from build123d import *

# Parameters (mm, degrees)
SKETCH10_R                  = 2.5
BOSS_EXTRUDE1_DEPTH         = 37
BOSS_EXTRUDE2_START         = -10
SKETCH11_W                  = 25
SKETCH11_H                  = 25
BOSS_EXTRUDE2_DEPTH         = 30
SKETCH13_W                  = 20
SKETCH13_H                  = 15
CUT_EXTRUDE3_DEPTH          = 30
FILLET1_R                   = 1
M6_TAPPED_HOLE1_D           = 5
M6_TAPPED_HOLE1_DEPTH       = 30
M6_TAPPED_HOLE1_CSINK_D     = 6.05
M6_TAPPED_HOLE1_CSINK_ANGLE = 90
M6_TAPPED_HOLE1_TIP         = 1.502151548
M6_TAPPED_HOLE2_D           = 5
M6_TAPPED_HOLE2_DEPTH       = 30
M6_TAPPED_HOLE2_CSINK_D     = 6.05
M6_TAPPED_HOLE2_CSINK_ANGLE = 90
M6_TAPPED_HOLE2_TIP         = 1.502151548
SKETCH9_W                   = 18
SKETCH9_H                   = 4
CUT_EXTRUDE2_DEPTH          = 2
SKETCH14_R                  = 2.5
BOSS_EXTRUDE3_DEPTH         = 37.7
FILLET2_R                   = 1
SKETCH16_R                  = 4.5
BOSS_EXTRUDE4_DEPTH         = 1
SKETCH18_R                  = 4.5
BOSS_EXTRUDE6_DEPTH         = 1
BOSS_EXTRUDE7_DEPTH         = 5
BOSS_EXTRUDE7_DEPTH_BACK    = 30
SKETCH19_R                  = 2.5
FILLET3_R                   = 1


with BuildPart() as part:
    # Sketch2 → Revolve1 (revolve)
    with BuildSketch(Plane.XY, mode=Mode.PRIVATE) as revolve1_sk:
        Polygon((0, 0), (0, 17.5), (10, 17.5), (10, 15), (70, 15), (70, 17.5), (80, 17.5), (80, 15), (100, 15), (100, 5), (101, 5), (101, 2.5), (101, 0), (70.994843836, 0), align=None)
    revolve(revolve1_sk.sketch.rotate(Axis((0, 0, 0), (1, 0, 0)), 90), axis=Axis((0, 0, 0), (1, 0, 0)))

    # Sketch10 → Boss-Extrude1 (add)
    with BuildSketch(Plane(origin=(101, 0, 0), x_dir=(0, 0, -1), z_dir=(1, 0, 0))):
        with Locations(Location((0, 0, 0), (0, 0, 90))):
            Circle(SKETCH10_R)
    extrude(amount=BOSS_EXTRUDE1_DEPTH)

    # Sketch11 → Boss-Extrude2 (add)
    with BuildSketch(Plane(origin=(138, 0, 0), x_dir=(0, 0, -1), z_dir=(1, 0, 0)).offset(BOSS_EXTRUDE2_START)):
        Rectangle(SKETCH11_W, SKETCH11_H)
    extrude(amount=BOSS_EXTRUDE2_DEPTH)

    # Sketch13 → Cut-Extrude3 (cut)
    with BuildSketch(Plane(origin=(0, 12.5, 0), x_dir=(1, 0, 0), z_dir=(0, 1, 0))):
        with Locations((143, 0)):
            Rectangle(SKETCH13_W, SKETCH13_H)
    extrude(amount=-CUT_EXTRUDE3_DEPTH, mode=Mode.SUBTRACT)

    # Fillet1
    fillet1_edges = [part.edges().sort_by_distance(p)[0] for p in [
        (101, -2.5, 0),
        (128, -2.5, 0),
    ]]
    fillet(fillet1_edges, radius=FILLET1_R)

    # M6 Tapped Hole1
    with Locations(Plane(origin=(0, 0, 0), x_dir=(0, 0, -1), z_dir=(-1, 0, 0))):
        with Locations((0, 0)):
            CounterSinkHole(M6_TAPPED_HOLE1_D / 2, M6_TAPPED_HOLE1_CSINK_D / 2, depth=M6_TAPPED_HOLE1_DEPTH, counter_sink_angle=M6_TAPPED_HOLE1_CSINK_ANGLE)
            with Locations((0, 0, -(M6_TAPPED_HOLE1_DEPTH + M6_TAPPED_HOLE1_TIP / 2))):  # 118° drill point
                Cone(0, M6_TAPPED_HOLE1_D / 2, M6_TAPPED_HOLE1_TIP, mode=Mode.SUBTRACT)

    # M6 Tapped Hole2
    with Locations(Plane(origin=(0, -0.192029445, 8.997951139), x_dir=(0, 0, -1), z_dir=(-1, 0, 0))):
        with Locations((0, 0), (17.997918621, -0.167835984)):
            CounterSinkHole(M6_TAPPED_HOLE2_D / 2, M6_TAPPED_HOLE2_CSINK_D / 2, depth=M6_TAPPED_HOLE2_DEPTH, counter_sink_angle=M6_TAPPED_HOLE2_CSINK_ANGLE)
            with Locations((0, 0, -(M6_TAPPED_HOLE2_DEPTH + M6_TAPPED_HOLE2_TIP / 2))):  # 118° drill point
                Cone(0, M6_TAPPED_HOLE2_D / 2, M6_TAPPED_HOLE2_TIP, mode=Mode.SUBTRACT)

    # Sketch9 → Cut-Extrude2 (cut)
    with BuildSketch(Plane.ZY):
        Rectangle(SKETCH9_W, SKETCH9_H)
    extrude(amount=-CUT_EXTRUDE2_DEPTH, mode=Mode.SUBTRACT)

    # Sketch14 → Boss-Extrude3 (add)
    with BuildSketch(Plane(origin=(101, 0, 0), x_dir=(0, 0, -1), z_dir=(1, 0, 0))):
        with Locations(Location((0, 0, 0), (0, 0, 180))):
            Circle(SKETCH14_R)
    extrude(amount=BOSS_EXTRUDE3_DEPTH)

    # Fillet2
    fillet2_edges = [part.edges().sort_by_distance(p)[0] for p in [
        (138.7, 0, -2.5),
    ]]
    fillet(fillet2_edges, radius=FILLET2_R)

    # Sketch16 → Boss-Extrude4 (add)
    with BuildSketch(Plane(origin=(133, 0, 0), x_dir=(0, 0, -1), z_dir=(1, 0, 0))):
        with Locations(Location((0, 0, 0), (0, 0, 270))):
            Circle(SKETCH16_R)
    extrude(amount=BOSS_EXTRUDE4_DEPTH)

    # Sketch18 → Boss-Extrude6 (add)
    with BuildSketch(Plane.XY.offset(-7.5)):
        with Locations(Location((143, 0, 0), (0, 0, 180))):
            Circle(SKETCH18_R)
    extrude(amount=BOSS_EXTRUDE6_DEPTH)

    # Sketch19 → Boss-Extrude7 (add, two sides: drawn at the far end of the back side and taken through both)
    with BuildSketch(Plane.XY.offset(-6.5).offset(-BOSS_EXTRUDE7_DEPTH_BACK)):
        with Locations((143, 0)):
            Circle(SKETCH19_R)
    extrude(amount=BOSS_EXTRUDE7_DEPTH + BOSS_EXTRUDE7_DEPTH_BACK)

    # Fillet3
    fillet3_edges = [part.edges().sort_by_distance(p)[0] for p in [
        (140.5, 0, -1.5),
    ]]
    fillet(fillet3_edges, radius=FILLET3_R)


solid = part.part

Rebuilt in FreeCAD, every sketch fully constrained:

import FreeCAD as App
import Part
import Sketcher

V = App.Vector
Q = App.Units.Quantity


def edges_at(feature, points):
    """Names of the edges that pass closest to the given points."""
    edges = feature.Shape.Edges
    near = lambda p: min(range(len(edges)), key=lambda i: edges[i].distToShape(Part.Vertex(*p))[0])
    return sorted({f"Edge{near(p) + 1}" for p in points})


def add_polygon(sketch, points):
    """Adds a closed chain of lines whose ends are joined by coincident constraints."""
    first, n = sketch.GeometryCount, len(points)
    for a, b in zip(points, points[1:] + points[:1]):
        sketch.addGeometry(Part.LineSegment(App.Vector(*a, 0), App.Vector(*b, 0)), False)
    for i in range(n):
        sketch.addConstraint(Sketcher.Constraint("Coincident", first + i, 2, first + (i + 1) % n, 1))

doc = App.newDocument("Part")
params = doc.addObject("Spreadsheet::Sheet", "Params")
for row, (alias, value) in enumerate([
    ("sketch1_width", "101 mm"),
    ("sketch1_width2", "1 mm"),
    ("sketch1_width3", "20 mm"),
    ("sketch1_width4", "10 mm"),
    ("sketch1_height", "5 mm"),
    ("revolution_angle", "360 deg"),
    ("sketch2_diameter", "5 mm"),
    ("pad1_length", "37 mm"),
    ("sketch3_width", "25 mm"),
    ("pad2_length", "30 mm"),
    ("sketch4_width", "20 mm"),
    ("sketch4_height", "15 mm"),
    ("pocket1_length", "30 mm"),
    ("fillet_radius", "1 mm"),
    ("sketch5_diameter", "5 mm"),
    ("hole_diameter", "5 mm"),
    ("hole_depth", "30 mm"),
    ("hole_csink_diameter", "6.05 mm"),
    ("sketch6_diameter", "5 mm"),
    ("hole2_diameter", "5 mm"),
    ("hole2_depth", "30 mm"),
    ("hole2_csink_diameter", "6.05 mm"),
    ("sketch7_width", "4 mm"),
    ("sketch7_height", "18 mm"),
    ("pocket2_length", "2 mm"),
    ("sketch8_diameter", "5 mm"),
    ("pad3_length", "37.7 mm"),
    ("fillet2_radius", "1 mm"),
    ("sketch9_diameter", "9 mm"),
    ("pad4_length", "1 mm"),
    ("sketch10_diameter", "9 mm"),
    ("pad5_length", "1 mm"),
    ("sketch11_diameter", "5 mm"),
    ("pad6_length", "5 mm"),
    ("pad6_length2", "30 mm"),
    ("fillet3_radius", "1 mm"),
], start=1):
    params.set(f"A{row}", alias)
    params.set(f"B{row}", "=" + value)
    params.setAlias(f"B{row}", alias)

body = doc.addObject("PartDesign::Body", "Body")

# Sketch on XY plane
sketch1 = body.newObject("Sketcher::SketchObject", "Sketch")
sketch1.AttachmentSupport = (doc.getObject("XY_Plane"), [""])
sketch1.MapMode = "FlatFace"
add_polygon(sketch1, [(0, 17.5), (0, 0), (101, 0), (101, 5), (100, 5), (100, 15), (80, 15), (80, 17.5), (70, 17.5), (70, 15), (10, 15), (10, 17.5)])  # lines 0-11
sketch1.addConstraint([
    Sketcher.Constraint("Vertical", 0),
    Sketcher.Constraint("Horizontal", 1),
    Sketcher.Constraint("Vertical", 2),
    Sketcher.Constraint("Horizontal", 3),
    Sketcher.Constraint("Vertical", 4),
    Sketcher.Constraint("Horizontal", 5),
    Sketcher.Constraint("Vertical", 6),
    Sketcher.Constraint("Horizontal", 7),
    Sketcher.Constraint("Vertical", 8),
    Sketcher.Constraint("Horizontal", 9),
    Sketcher.Constraint("Vertical", 10),
    Sketcher.Constraint("Horizontal", 11),
    Sketcher.Constraint("Coincident", 0, 2, -1, 1),
    Sketcher.Constraint("Horizontal", 5, 2, 8, 2),
    Sketcher.Constraint("Horizontal", 7, 2, 10, 2),
    Sketcher.Constraint("Equal", 7, 11),
    Sketcher.Constraint("Equal", 11, 4),
    Sketcher.Constraint("DistanceX", 1, 1, 1, 2, Q("101 mm")),
    Sketcher.Constraint("DistanceX", 3, 2, 3, 1, Q("1 mm")),
    Sketcher.Constraint("DistanceX", 5, 2, 5, 1, Q("20 mm")),
    Sketcher.Constraint("DistanceX", 7, 2, 7, 1, Q("10 mm")),
    Sketcher.Constraint("DistanceY", 2, 1, 2, 2, Q("5 mm")),
    Sketcher.Constraint("DistanceY", 0, 2, 0, 1, Q("17.5 mm")),
])
sketch1.setExpression("Constraints[29]", "Params.sketch1_width")
sketch1.setExpression("Constraints[30]", "Params.sketch1_width2")
sketch1.setExpression("Constraints[31]", "Params.sketch1_width3")
sketch1.setExpression("Constraints[32]", "Params.sketch1_width4")
sketch1.setExpression("Constraints[33]", "Params.sketch1_height")
revolution = body.newObject("PartDesign::Revolution", "Revolution")
revolution.Profile = sketch1
revolution.ReferenceAxis = (sketch1, ["H_Axis"])
revolution.setExpression("Angle", "Params.revolution_angle")

# Sketch on YZ plane
sketch2 = body.newObject("Sketcher::SketchObject", "Sketch001")
sketch2.AttachmentSupport = (doc.getObject("YZ_Plane"), [""])
sketch2.MapMode = "FlatFace"
sketch2.AttachmentOffset = App.Placement(V(0, 0, 101), App.Rotation())
sketch2.addGeometry(Part.Circle(V(0, 0, 0), V(0, 0, 1), 2.5), False)
sketch2.addConstraint([
    Sketcher.Constraint("Coincident", 0, 3, -1, 1),
    Sketcher.Constraint("Diameter", 0, Q("5 mm")),
])
sketch2.setExpression("Constraints[1]", "Params.sketch2_diameter")
pad1 = body.newObject("PartDesign::Pad", "Pad")
pad1.Profile = sketch2
pad1.setExpression("Length", "Params.pad1_length")

# Sketch on YZ plane
sketch3 = body.newObject("Sketcher::SketchObject", "Sketch002")
sketch3.AttachmentSupport = (doc.getObject("YZ_Plane"), [""])
sketch3.MapMode = "FlatFace"
sketch3.AttachmentOffset = App.Placement(V(0, 0, 128), App.Rotation())
add_polygon(sketch3, [(12, 12), (-12, 12), (-12, -12), (12, -12)])  # lines 0-3
sketch3.addConstraint([
    Sketcher.Constraint("Horizontal", 0),
    Sketcher.Constraint("Vertical", 1),
    Sketcher.Constraint("Horizontal", 2),
    Sketcher.Constraint("Vertical", 3),
    Sketcher.Constraint("Symmetric", 0, 2, 2, 2, -1, 1),
    Sketcher.Constraint("Equal", 2, 1),
    Sketcher.Constraint("DistanceX", 0, 2, 0, 1, Q("25 mm")),
])
sketch3.setExpression("Constraints[10]", "Params.sketch3_width")
pad2 = body.newObject("PartDesign::Pad", "Pad001")
pad2.Profile = sketch3
pad2.setExpression("Length", "Params.pad2_length")

# Sketch on XZ plane
sketch4 = body.newObject("Sketcher::SketchObject", "Sketch003")
sketch4.AttachmentSupport = (doc.getObject("XZ_Plane"), [""])
sketch4.MapMode = "FlatFace"
sketch4.AttachmentOffset = App.Placement(V(0, 0, -12.5), App.Rotation())
add_polygon(sketch4, [(133, -8), (133, 8), (153, 8), (153, -8)])  # lines 0-3
sketch4.addConstraint([
    Sketcher.Constraint("Vertical", 0),
    Sketcher.Constraint("Horizontal", 1),
    Sketcher.Constraint("Vertical", 2),
    Sketcher.Constraint("Horizontal", 3),
    Sketcher.Constraint("DistanceX", 1, 1, 1, 2, Q("20 mm")),
    Sketcher.Constraint("DistanceY", 0, 1, 0, 2, Q("15 mm")),
    Sketcher.Constraint("DistanceX", -1, 1, 0, 2, Q("133 mm")),
    Sketcher.Constraint("DistanceY", -1, 1, 0, 2, Q("7.5 mm")),
])
sketch4.setExpression("Constraints[8]", "Params.sketch4_width")
sketch4.setExpression("Constraints[9]", "Params.sketch4_height")
pocket1 = body.newObject("PartDesign::Pocket", "Pocket")
pocket1.Profile = sketch4
pocket1.setExpression("Length", "Params.pocket1_length")
pocket1.Reversed = True
doc.recompute()

fillet = body.newObject("PartDesign::Fillet", "Fillet")
fillet.Base = (pocket1, edges_at(pocket1, [(101, -2.5, 0), (128, -2.5, 0)]))
fillet.setExpression("Radius", "Params.fillet_radius")

# Sketch on YZ plane
sketch5 = body.newObject("Sketcher::SketchObject", "Sketch004")
sketch5.AttachmentSupport = (doc.getObject("YZ_Plane"), [""])
sketch5.MapMode = "FlatFace"
sketch5.addGeometry(Part.Circle(V(0, 0, 0), V(0, 0, 1), 2.5), False)
sketch5.addConstraint([
    Sketcher.Constraint("Coincident", 0, 3, -1, 1),
    Sketcher.Constraint("Diameter", 0, Q("5 mm")),
])
sketch5.setExpression("Constraints[1]", "Params.sketch5_diameter")
doc.recompute()
hole = body.newObject("PartDesign::Hole", "Hole")
hole.Profile = sketch5
hole.ThreadType = "None"
hole.setExpression("Diameter", "Params.hole_diameter")
hole.DepthType = "Dimension"
hole.setExpression("Depth", "Params.hole_depth")
hole.DrillPoint = "Angled"
hole.DrillPointAngle = 118
hole.HoleCutType = "Countersink"
hole.setExpression("HoleCutDiameter", "Params.hole_csink_diameter")
hole.HoleCutCountersinkAngle = 90
hole.Reversed = True

# Sketch on YZ plane
sketch6 = body.newObject("Sketcher::SketchObject", "Sketch005")
sketch6.AttachmentSupport = (doc.getObject("YZ_Plane"), [""])
sketch6.MapMode = "FlatFace"
sketch6.addGeometry([
    Part.Circle(V(-0.2, 9, 0), V(0, 0, 1), 2.5),
    Part.Circle(V(0, -9, 0), V(0, 0, 1), 2.5),
], False)
sketch6.addConstraint([
    Sketcher.Constraint("Equal", 0, 1),
    Sketcher.Constraint("Diameter", 0, Q("5 mm")),
    Sketcher.Constraint("DistanceX", 0, 3, -1, 1, Q("0.192029 mm")),
    Sketcher.Constraint("DistanceY", -1, 1, 0, 3, Q("8.997951 mm")),
    Sketcher.Constraint("DistanceY", 1, 3, 0, 3, Q("17.997919 mm")),
    Sketcher.Constraint("DistanceX", 1, 3, -1, 1, Q("0.024193 mm")),
])
sketch6.setExpression("Constraints[1]", "Params.sketch6_diameter")
doc.recompute()
hole2 = body.newObject("PartDesign::Hole", "Hole001")
hole2.Profile = sketch6
hole2.ThreadType = "None"
hole2.setExpression("Diameter", "Params.hole2_diameter")
hole2.DepthType = "Dimension"
hole2.setExpression("Depth", "Params.hole2_depth")
hole2.DrillPoint = "Angled"
hole2.DrillPointAngle = 118
hole2.HoleCutType = "Countersink"
hole2.setExpression("HoleCutDiameter", "Params.hole2_csink_diameter")
hole2.HoleCutCountersinkAngle = 90
hole2.Reversed = True

# Sketch on YZ plane
sketch7 = body.newObject("Sketcher::SketchObject", "Sketch006")
sketch7.AttachmentSupport = (doc.getObject("YZ_Plane"), [""])
sketch7.MapMode = "FlatFace"
add_polygon(sketch7, [(2, -9), (-2, -9), (-2, 9), (2, 9)])  # lines 0-3
sketch7.addConstraint([
    Sketcher.Constraint("Horizontal", 0),
    Sketcher.Constraint("Vertical", 1),
    Sketcher.Constraint("Horizontal", 2),
    Sketcher.Constraint("Vertical", 3),
    Sketcher.Constraint("Symmetric", 0, 2, 2, 2, -1, 1),
    Sketcher.Constraint("DistanceX", 0, 2, 0, 1, Q("4 mm")),
    Sketcher.Constraint("DistanceY", 1, 1, 1, 2, Q("18 mm")),
])
sketch7.setExpression("Constraints[9]", "Params.sketch7_width")
sketch7.setExpression("Constraints[10]", "Params.sketch7_height")
pocket2 = body.newObject("PartDesign::Pocket", "Pocket001")
pocket2.Profile = sketch7
pocket2.setExpression("Length", "Params.pocket2_length")
pocket2.Reversed = True

# Sketch on YZ plane
sketch8 = body.newObject("Sketcher::SketchObject", "Sketch007")
sketch8.AttachmentSupport = (doc.getObject("YZ_Plane"), [""])
sketch8.MapMode = "FlatFace"
sketch8.AttachmentOffset = App.Placement(V(0, 0, 101), App.Rotation())
sketch8.addGeometry(Part.Circle(V(0, 0, 0), V(0, 0, 1), 2.5), False)
sketch8.addConstraint([
    Sketcher.Constraint("Coincident", 0, 3, -1, 1),
    Sketcher.Constraint("Diameter", 0, Q("5 mm")),
])
sketch8.setExpression("Constraints[1]", "Params.sketch8_diameter")
pad3 = body.newObject("PartDesign::Pad", "Pad002")
pad3.Profile = sketch8
pad3.setExpression("Length", "Params.pad3_length")
doc.recompute()

fillet2 = body.newObject("PartDesign::Fillet", "Fillet001")
fillet2.Base = (pad3, edges_at(pad3, [(138.7, 0, -2.5)]))
fillet2.setExpression("Radius", "Params.fillet2_radius")

# Sketch on YZ plane
sketch9 = body.newObject("Sketcher::SketchObject", "Sketch008")
sketch9.AttachmentSupport = (doc.getObject("YZ_Plane"), [""])
sketch9.MapMode = "FlatFace"
sketch9.AttachmentOffset = App.Placement(V(0, 0, 133), App.Rotation())
sketch9.addGeometry(Part.Circle(V(0, 0, 0), V(0, 0, 1), 4.5), False)
sketch9.addConstraint([
    Sketcher.Constraint("Coincident", 0, 3, -1, 1),
    Sketcher.Constraint("Diameter", 0, Q("9 mm")),
])
sketch9.setExpression("Constraints[1]", "Params.sketch9_diameter")
pad4 = body.newObject("PartDesign::Pad", "Pad003")
pad4.Profile = sketch9
pad4.setExpression("Length", "Params.pad4_length")

# Sketch on XY plane
sketch10 = body.newObject("Sketcher::SketchObject", "Sketch009")
sketch10.AttachmentSupport = (doc.getObject("XY_Plane"), [""])
sketch10.MapMode = "FlatFace"
sketch10.AttachmentOffset = App.Placement(V(0, 0, -7.5), App.Rotation())
sketch10.addGeometry(Part.Circle(V(143, 0, 0), V(0, 0, 1), 4.5), False)
sketch10.addConstraint([
    Sketcher.Constraint("PointOnObject", 0, 3, -1),
    Sketcher.Constraint("Diameter", 0, Q("9 mm")),
    Sketcher.Constraint("DistanceX", -1, 1, 0, 3, Q("143 mm")),
])
sketch10.setExpression("Constraints[1]", "Params.sketch10_diameter")
pad5 = body.newObject("PartDesign::Pad", "Pad004")
pad5.Profile = sketch10
pad5.setExpression("Length", "Params.pad5_length")

# Sketch on XY plane
sketch11 = body.newObject("Sketcher::SketchObject", "Sketch010")
sketch11.AttachmentSupport = (doc.getObject("XY_Plane"), [""])
sketch11.MapMode = "FlatFace"
sketch11.AttachmentOffset = App.Placement(V(0, 0, -6.5), App.Rotation())
sketch11.addGeometry(Part.Circle(V(143, 0, 0), V(0, 0, 1), 2.5), False)
sketch11.addConstraint([
    Sketcher.Constraint("PointOnObject", 0, 3, -1),
    Sketcher.Constraint("Diameter", 0, Q("5 mm")),
    Sketcher.Constraint("DistanceX", -1, 1, 0, 3, Q("143 mm")),
])
sketch11.setExpression("Constraints[1]", "Params.sketch11_diameter")
pad6 = body.newObject("PartDesign::Pad", "Pad005")
pad6.Profile = sketch11
pad6.Type = "TwoLengths"
pad6.setExpression("Length", "Params.pad6_length")
pad6.setExpression("Length2", "Params.pad6_length2")
doc.recompute()

fillet3 = body.newObject("PartDesign::Fillet", "Fillet002")
fillet3.Base = (pad6, edges_at(pad6, [(140.5, 0, -1.5)]))
fillet3.setExpression("Radius", "Params.fillet3_radius")

doc.recompute()
